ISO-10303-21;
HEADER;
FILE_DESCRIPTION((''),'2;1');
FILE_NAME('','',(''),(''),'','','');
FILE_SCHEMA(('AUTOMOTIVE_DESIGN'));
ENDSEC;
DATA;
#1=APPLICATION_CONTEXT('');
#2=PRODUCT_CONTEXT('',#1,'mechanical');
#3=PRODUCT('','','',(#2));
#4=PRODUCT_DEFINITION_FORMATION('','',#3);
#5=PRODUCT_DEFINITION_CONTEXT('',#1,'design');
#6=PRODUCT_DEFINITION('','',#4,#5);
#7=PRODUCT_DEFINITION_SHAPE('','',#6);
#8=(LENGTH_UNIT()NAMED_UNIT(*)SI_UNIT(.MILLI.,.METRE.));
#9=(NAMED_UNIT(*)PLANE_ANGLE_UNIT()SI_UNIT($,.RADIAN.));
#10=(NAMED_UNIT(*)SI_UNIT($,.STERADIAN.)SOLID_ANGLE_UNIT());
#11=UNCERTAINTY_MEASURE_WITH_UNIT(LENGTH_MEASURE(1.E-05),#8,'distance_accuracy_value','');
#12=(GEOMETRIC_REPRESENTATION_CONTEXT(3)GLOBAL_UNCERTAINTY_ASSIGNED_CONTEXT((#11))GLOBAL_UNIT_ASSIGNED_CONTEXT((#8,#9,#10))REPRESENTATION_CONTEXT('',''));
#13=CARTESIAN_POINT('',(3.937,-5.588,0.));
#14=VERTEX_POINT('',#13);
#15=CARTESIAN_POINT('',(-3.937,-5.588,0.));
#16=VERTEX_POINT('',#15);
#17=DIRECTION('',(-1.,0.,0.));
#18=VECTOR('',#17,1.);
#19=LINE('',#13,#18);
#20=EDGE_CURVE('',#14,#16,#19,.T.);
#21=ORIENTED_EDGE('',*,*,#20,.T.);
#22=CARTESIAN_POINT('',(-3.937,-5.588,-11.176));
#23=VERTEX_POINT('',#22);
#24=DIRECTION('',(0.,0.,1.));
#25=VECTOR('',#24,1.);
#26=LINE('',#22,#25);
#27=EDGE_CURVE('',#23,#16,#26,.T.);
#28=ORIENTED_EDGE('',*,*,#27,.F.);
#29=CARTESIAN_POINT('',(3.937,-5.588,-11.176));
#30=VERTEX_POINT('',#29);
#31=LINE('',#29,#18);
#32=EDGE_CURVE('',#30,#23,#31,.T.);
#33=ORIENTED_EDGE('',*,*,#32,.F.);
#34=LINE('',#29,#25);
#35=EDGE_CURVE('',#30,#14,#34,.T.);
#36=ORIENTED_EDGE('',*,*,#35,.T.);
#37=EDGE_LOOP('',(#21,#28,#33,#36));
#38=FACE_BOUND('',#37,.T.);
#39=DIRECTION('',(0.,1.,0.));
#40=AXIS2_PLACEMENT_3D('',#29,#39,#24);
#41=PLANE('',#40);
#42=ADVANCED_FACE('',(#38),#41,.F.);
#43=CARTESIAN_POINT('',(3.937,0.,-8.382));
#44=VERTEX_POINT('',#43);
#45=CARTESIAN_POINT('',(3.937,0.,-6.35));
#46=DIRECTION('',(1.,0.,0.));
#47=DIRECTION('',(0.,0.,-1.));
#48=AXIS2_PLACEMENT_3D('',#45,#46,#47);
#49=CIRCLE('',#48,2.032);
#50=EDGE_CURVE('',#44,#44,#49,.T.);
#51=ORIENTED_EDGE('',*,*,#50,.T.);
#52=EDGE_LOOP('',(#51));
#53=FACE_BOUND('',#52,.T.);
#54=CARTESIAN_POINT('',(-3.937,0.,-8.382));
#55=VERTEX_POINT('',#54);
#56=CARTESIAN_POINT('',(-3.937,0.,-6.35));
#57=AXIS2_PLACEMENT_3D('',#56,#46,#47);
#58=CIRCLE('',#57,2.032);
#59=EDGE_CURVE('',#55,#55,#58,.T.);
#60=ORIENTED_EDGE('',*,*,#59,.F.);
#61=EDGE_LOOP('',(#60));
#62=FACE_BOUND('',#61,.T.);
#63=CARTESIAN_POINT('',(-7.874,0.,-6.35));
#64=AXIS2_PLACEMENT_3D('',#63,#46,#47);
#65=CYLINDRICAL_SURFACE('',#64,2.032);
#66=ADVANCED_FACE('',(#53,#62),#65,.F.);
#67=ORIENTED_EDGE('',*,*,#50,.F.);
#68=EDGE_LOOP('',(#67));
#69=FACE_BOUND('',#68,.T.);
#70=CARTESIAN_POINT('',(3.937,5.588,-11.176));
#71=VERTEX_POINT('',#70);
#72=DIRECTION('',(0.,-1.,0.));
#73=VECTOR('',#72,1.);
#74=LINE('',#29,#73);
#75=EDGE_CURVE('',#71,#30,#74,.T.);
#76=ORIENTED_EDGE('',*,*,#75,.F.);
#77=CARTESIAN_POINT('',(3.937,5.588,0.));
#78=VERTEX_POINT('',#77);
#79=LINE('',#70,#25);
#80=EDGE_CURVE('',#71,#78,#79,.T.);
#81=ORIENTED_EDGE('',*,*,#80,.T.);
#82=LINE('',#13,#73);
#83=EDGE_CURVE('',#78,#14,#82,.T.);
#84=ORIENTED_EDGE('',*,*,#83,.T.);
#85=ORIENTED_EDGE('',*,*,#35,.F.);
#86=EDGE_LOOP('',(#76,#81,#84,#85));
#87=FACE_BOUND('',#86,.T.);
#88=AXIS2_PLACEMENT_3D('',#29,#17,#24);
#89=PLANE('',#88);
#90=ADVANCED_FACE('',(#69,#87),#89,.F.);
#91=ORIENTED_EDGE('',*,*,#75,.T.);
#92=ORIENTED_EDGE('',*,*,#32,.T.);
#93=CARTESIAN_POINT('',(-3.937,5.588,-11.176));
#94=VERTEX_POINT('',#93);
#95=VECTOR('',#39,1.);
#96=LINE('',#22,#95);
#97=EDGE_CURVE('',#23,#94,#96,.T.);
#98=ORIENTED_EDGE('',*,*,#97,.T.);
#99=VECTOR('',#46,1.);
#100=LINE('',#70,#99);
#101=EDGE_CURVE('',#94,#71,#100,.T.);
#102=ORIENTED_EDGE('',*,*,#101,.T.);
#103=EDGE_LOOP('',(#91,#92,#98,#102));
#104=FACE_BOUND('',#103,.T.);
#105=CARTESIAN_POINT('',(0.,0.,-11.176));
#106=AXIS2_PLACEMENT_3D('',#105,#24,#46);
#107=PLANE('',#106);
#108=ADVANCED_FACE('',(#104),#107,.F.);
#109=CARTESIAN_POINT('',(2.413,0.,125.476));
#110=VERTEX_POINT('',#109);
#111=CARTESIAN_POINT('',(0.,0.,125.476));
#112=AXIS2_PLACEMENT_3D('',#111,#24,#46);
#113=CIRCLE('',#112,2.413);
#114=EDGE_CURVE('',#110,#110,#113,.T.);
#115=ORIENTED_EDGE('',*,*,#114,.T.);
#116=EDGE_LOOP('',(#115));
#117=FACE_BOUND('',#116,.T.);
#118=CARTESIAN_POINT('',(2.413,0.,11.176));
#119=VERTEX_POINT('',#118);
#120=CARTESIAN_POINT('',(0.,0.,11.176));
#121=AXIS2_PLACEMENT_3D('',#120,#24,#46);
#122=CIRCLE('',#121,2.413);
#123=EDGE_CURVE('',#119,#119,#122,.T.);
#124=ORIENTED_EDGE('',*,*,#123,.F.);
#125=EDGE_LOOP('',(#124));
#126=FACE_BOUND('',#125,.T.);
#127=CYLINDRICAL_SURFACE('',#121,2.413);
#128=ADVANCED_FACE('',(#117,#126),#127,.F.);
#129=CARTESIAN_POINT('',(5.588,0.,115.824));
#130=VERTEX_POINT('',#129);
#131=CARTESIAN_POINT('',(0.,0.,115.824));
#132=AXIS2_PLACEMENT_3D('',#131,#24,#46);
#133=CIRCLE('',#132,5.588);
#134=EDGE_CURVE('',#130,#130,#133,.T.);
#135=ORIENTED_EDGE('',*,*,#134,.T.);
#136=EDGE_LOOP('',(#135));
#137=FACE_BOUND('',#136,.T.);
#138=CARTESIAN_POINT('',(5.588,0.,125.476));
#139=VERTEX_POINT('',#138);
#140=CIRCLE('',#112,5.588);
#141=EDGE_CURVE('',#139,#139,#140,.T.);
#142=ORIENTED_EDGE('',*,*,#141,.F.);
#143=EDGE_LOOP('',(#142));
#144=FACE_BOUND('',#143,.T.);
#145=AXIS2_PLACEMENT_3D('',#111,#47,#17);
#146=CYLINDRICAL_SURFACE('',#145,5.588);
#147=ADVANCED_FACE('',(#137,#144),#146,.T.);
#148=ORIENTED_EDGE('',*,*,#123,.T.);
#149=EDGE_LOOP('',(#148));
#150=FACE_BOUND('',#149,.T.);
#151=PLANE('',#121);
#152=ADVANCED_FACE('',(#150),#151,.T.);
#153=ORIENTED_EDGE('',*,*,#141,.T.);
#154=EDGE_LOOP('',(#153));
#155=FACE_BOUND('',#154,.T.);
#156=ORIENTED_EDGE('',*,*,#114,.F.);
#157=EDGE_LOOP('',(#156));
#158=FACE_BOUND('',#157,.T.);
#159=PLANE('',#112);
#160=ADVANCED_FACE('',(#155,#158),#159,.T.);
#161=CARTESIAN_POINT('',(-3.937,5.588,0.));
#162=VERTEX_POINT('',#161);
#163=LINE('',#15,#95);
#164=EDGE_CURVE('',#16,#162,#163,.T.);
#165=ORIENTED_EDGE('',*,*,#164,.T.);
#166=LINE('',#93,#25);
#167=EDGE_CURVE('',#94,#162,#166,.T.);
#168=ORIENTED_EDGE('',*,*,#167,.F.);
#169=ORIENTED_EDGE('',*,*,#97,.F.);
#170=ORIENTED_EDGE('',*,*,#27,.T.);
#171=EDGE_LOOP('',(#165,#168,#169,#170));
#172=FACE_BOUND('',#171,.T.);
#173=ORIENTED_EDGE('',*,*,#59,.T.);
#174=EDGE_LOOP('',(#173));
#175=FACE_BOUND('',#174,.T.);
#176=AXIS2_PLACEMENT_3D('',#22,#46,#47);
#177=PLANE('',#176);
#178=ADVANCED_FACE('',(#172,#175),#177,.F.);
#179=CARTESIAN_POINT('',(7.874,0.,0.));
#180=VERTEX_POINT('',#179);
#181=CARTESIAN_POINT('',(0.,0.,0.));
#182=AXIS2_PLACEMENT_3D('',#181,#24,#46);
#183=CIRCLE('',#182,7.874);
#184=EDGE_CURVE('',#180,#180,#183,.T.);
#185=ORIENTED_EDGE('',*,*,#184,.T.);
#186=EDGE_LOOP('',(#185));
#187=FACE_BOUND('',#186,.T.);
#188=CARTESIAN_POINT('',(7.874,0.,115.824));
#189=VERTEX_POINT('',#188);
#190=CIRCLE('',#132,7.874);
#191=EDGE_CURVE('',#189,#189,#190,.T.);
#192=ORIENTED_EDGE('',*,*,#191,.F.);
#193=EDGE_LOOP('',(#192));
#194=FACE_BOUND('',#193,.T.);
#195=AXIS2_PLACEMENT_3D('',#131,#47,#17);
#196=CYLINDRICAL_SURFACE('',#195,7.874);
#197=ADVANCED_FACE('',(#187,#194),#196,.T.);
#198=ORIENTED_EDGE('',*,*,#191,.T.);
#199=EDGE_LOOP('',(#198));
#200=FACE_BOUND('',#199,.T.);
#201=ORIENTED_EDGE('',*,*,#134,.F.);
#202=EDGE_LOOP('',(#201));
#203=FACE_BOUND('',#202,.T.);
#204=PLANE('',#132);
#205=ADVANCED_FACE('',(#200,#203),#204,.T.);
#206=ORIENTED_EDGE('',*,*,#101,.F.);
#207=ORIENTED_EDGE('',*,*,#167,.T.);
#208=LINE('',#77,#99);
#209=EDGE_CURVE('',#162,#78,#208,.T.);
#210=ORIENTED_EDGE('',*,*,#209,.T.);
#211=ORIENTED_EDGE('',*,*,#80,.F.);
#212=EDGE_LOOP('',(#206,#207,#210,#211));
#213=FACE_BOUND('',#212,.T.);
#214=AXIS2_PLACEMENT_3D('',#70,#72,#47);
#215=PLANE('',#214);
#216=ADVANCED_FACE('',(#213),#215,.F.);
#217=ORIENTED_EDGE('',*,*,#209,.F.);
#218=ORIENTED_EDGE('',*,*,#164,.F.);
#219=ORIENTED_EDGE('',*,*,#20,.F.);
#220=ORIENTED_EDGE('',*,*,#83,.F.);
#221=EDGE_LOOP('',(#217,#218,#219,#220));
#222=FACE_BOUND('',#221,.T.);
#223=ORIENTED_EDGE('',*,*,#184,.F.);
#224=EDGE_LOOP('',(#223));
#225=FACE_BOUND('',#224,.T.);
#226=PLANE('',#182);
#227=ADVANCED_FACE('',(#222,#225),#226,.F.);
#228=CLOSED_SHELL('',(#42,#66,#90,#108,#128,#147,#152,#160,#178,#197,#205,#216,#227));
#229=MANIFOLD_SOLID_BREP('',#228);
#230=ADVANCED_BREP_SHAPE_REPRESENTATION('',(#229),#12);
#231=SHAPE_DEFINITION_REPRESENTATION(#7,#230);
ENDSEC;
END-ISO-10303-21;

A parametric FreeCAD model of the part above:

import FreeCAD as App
import Part
import Sketcher
Q = App.Units.Quantity


def add_polygon(sketch, points):
    """Adds a closed chain of lines whose ends are joined by coincident constraints."""
    first, n = sketch.GeometryCount, len(points)
    for a, b in zip(points, points[1:] + points[:1]):
        sketch.addGeometry(Part.LineSegment(App.Vector(*a, 0), App.Vector(*b, 0)), False)
    for i in range(n):
        sketch.addConstraint(Sketcher.Constraint("Coincident", first + i, 2, first + (i + 1) % n, 1))

doc = App.newDocument("Part")
body = doc.addObject("PartDesign::Body", "Body")

sketch1 = body.newObject("Sketcher::SketchObject", "Sketch")
sketch1.AttachmentSupport = (doc.getObject("XY_Plane"), [""])
sketch1.MapMode = "FlatFace"
sketch1.addGeometry(Part.Circle(App.Vector(0, 0, 0), App.Vector(0, 0, 1), 8), False)
sketch1.addConstraint(Sketcher.Constraint("Coincident", 0, 3, -1, 1))
sketch1.addConstraint(Sketcher.Constraint("Diameter", 0, Q("0.62 in")))
pad1 = body.newObject("PartDesign::Pad", "Pad")
pad1.Profile = sketch1
pad1.Length = Q("4.56 in")

sketch2 = body.newObject("Sketcher::SketchObject", "Sketch001")
sketch2.AttachmentSupport = (doc.getObject("XY_Plane"), [""])
sketch2.MapMode = "FlatFace"
sketch2.AttachmentOffset = App.Placement(App.Vector(0, 0, 4.56 * 25.4), App.Rotation())
sketch2.addGeometry(Part.Circle(App.Vector(0, 0, 0), App.Vector(0, 0, 1), 6), False)
sketch2.addConstraint(Sketcher.Constraint("Coincident", 0, 3, -1, 1))
sketch2.addConstraint(Sketcher.Constraint("Diameter", 0, Q("0.44 in")))
pad2 = body.newObject("PartDesign::Pad", "Pad001")
pad2.Profile = sketch2
pad2.Length = Q("0.38 in")

sketch3 = body.newObject("Sketcher::SketchObject", "Sketch002")
sketch3.AttachmentSupport = (doc.getObject("XY_Plane"), [""])
sketch3.MapMode = "FlatFace"
add_polygon(sketch3, [(4, 6), (4, -6), (-4, -6), (-4, 6)])
sketch3.addConstraint(Sketcher.Constraint("Vertical", 0))
sketch3.addConstraint(Sketcher.Constraint("Horizontal", 1))
sketch3.addConstraint(Sketcher.Constraint("Vertical", 2))
sketch3.addConstraint(Sketcher.Constraint("Horizontal", 3))
sketch3.addConstraint(Sketcher.Constraint("Symmetric", 0, 2, 2, 2, -1, 1))
sketch3.addConstraint(Sketcher.Constraint("DistanceX", 1, 2, 1, 1, Q("0.31 in")))
sketch3.addConstraint(Sketcher.Constraint("DistanceY", 0, 2, 0, 1, Q("0.44 in")))
pad3 = body.newObject("PartDesign::Pad", "Pad002")
pad3.Profile = sketch3
pad3.Length = Q("0.44 in")
pad3.Reversed = True

sketch4 = body.newObject("Sketcher::SketchObject", "Sketch003")
sketch4.AttachmentSupport = (doc.getObject("YZ_Plane"), [""])
sketch4.MapMode = "FlatFace"
sketch4.AttachmentOffset = App.Placement(App.Vector(0, 0, 0.155 * 25.4), App.Rotation())
sketch4.addGeometry(Part.Circle(App.Vector(0, -6.3, 0), App.Vector(0, 0, 1), 2), False)
sketch4.addConstraint(Sketcher.Constraint("PointOnObject", 0, 3, -2))
sketch4.addConstraint(Sketcher.Constraint("Diameter", 0, Q("0.16 in")))
sketch4.addConstraint(Sketcher.Constraint("DistanceY", 0, 3, -1, 1, Q("0.25 in")))
pocket1 = body.newObject("PartDesign::Pocket", "Pocket")
pocket1.Profile = sketch4
pocket1.Type = "ThroughAll"

sketch5 = body.newObject("Sketcher::SketchObject", "Sketch004")
sketch5.AttachmentSupport = (doc.getObject("XY_Plane"), [""])
sketch5.MapMode = "FlatFace"
sketch5.AttachmentOffset = App.Placement(App.Vector(0, 0, 4.94 * 25.4), App.Rotation())
sketch5.addGeometry(Part.Circle(App.Vector(0, 0, 0), App.Vector(0, 0, 1), 2.4), False)
sketch5.addConstraint(Sketcher.Constraint("Coincident", 0, 3, -1, 1))
sketch5.addConstraint(Sketcher.Constraint("Diameter", 0, Q("0.19 in")))
pocket2 = body.newObject("PartDesign::Pocket", "Pocket001")
pocket2.Profile = sketch5
pocket2.Length = Q("4.5 in")

doc.recompute()
